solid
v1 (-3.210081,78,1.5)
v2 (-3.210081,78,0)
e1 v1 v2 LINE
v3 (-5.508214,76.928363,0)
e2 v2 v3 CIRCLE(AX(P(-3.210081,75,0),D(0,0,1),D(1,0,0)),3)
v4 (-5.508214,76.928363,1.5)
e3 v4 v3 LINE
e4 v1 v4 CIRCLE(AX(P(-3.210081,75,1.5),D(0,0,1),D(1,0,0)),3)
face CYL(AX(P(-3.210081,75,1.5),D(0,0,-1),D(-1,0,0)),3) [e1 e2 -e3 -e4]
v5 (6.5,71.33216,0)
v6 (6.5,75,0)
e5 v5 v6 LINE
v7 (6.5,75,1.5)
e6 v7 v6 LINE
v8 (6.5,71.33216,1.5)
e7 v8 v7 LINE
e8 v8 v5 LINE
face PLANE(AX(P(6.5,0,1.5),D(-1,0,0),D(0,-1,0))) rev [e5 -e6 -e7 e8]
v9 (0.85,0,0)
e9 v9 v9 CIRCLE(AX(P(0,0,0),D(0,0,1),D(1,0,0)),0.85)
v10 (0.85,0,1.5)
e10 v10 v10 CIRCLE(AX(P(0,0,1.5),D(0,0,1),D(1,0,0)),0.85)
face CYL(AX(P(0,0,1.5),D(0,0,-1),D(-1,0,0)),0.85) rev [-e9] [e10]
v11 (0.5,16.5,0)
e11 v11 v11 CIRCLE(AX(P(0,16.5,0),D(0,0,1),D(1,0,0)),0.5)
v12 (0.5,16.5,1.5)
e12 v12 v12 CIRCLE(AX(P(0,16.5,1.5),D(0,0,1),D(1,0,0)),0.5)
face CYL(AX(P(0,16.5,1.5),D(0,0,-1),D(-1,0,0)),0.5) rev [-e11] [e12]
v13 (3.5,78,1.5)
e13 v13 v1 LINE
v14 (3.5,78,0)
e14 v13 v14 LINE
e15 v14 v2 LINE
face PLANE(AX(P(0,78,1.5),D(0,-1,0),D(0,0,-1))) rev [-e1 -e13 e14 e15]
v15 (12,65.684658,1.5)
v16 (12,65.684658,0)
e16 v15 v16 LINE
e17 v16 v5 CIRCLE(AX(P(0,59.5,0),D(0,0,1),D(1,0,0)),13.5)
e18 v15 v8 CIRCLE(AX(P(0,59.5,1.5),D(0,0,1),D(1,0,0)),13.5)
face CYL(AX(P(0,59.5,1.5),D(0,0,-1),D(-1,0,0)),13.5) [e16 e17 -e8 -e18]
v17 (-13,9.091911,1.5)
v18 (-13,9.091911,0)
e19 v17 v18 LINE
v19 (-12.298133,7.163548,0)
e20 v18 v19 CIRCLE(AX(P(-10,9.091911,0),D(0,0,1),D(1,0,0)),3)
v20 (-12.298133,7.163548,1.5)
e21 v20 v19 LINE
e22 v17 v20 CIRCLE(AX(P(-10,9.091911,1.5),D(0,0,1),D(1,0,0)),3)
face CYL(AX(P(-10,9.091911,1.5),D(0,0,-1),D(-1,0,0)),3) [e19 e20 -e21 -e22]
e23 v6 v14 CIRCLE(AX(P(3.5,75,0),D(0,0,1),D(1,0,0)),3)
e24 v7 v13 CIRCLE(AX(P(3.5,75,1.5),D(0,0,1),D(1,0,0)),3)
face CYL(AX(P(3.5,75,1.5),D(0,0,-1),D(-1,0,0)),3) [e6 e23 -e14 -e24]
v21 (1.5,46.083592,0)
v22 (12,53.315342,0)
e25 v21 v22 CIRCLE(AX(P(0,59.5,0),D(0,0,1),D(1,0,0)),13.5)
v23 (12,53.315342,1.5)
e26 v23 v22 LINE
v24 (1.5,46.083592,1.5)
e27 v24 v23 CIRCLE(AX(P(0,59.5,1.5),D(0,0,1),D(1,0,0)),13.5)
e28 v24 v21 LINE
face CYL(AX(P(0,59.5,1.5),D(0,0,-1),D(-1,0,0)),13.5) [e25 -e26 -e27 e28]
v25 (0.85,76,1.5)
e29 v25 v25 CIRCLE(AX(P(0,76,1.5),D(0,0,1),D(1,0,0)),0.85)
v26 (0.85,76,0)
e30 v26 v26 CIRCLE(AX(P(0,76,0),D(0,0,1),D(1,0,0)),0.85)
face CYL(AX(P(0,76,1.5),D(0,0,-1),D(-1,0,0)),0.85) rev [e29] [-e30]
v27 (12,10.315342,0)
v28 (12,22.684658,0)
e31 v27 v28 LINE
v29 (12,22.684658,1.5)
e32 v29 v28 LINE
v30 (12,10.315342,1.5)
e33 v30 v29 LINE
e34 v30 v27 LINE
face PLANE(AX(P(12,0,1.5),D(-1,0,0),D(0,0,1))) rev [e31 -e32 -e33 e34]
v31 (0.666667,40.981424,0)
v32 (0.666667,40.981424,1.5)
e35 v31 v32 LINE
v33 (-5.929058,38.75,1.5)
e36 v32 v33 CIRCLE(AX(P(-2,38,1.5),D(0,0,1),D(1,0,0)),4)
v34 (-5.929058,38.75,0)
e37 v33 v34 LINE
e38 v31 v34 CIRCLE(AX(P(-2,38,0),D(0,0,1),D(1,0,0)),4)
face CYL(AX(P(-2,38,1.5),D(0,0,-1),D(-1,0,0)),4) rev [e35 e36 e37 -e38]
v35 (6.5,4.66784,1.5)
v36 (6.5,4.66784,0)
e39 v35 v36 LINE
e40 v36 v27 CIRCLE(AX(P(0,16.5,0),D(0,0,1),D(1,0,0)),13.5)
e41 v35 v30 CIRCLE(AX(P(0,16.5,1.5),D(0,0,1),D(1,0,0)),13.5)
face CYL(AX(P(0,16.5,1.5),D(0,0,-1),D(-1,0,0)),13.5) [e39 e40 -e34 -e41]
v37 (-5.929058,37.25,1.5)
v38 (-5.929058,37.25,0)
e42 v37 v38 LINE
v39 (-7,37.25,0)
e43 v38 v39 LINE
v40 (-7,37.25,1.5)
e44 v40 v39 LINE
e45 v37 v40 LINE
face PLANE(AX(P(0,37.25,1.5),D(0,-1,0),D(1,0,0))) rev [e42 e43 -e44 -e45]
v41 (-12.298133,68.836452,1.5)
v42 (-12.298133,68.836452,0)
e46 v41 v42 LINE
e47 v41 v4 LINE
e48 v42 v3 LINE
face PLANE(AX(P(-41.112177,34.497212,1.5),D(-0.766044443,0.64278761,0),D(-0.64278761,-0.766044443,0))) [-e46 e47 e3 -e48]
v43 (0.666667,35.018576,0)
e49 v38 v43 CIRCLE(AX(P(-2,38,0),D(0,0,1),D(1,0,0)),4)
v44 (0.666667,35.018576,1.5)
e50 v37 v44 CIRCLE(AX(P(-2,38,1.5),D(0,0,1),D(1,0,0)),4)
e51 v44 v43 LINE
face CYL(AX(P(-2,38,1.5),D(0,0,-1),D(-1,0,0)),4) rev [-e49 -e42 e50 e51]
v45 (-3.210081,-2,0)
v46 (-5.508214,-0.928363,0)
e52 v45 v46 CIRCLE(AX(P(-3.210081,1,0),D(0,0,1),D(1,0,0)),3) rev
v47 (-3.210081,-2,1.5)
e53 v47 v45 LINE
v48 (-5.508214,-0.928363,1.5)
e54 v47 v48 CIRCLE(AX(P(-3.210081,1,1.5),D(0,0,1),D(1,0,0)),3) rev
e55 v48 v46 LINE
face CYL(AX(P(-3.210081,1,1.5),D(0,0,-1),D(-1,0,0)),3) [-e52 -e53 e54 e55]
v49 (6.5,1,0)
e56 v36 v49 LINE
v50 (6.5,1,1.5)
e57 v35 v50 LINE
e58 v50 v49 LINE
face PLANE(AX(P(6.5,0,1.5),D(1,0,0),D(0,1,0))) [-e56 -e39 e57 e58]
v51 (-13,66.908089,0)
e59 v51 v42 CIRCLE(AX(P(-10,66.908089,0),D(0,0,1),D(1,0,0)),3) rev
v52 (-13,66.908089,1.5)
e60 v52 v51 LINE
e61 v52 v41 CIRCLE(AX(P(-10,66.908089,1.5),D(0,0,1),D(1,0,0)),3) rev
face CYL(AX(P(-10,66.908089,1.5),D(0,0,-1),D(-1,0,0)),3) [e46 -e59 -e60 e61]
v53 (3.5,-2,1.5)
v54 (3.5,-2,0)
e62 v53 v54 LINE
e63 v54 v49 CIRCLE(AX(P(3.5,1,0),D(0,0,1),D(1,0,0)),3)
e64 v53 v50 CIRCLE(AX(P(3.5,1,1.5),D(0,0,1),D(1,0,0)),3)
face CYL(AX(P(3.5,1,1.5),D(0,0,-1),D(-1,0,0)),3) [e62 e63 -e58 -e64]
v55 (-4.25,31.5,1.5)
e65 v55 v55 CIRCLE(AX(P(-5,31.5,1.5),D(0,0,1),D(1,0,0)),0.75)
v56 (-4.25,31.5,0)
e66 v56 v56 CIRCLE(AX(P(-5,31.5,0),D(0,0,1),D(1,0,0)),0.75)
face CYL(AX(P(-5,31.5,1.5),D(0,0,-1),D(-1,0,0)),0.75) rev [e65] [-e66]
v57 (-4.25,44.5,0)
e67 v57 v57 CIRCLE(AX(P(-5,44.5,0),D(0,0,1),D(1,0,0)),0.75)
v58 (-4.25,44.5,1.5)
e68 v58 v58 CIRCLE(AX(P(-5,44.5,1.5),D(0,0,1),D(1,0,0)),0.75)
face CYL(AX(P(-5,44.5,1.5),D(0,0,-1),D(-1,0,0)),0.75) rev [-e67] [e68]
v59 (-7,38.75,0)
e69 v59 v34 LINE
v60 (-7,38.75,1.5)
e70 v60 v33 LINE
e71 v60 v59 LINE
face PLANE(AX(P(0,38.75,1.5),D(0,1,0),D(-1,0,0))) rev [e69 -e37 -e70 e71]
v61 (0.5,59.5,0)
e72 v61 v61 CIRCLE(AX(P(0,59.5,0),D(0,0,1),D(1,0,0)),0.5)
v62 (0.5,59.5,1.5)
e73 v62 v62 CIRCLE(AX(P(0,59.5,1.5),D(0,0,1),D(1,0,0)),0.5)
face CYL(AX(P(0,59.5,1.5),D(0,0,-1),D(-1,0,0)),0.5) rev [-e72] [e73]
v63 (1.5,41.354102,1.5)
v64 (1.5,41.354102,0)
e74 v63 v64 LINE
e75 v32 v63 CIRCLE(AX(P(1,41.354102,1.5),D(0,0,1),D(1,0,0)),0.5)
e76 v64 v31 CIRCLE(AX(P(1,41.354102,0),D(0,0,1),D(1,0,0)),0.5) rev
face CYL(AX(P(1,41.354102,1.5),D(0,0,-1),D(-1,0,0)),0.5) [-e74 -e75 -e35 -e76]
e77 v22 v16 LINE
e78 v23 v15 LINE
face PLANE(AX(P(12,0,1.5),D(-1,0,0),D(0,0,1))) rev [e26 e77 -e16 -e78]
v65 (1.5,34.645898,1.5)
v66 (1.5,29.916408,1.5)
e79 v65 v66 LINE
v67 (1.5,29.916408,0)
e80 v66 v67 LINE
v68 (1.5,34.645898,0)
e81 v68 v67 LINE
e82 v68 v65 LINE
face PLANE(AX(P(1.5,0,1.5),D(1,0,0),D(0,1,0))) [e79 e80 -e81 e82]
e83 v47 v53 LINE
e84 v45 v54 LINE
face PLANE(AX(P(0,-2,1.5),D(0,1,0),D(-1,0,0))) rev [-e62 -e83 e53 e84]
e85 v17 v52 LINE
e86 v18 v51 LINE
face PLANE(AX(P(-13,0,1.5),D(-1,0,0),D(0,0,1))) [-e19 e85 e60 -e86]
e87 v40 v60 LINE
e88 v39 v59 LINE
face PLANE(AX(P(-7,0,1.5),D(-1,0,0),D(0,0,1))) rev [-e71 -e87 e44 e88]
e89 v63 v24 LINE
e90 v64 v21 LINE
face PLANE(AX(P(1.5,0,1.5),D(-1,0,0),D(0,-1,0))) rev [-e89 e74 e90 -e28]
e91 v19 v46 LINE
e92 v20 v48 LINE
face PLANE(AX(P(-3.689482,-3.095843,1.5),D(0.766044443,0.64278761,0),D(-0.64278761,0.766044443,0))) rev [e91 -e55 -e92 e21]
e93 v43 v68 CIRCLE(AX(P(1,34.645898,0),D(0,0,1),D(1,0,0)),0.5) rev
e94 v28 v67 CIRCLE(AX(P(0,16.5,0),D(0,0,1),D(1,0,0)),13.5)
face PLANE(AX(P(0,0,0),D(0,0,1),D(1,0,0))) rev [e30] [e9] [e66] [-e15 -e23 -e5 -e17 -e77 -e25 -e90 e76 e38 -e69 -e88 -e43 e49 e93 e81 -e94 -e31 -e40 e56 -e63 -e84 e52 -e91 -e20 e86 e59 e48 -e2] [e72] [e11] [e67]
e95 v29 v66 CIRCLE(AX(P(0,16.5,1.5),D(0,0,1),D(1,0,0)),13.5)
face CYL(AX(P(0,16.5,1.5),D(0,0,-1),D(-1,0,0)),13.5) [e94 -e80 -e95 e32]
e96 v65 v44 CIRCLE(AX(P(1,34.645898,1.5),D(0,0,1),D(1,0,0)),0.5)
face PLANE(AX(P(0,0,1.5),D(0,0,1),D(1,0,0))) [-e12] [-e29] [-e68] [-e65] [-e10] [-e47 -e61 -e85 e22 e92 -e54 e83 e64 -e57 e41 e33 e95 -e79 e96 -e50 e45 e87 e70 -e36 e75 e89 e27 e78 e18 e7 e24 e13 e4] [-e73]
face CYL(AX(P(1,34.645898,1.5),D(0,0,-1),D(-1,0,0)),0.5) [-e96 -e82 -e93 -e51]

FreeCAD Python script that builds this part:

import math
import FreeCAD as App
import Part
import Sketcher
from FreeCAD import Vector
Q = App.Units.Quantity


def edges_at(feature, points):
    """Names of the edges that pass closest to the given points."""
    edges = feature.Shape.Edges
    near = lambda p: min(range(len(edges)), key=lambda i: edges[i].distToShape(Part.Vertex(*p))[0])
    return sorted({f"Edge{near(p) + 1}" for p in points})

doc = App.newDocument("Part")
body = doc.addObject("PartDesign::Body", "Body")

# Sketch on XY plane
sketch1 = body.newObject("Sketcher::SketchObject", "Sketch")
sketch1.AttachmentSupport = (doc.getObject("XY_Plane"), [""])
sketch1.MapMode = "FlatFace"
sketch1.addGeometry(Part.LineSegment(Vector(-13, 66.9, 0), Vector(-13, 9.1, 0)), False)
sketch1.addGeometry(Part.ArcOfCircle(Part.Circle(Vector(-10, 9.1, 0), Vector(0, 0, 1), 3), math.radians(-180), math.radians(-140)), False)
sketch1.addGeometry(Part.LineSegment(Vector(-12.3, 7.2, 0), Vector(-5.5, -0.9, 0)), False)
sketch1.addGeometry(Part.ArcOfCircle(Part.Circle(Vector(-3.2, 1, 0), Vector(0, 0, 1), 3), math.radians(-140), math.radians(-90)), False)
sketch1.addGeometry(Part.LineSegment(Vector(-3.2, -2, 0), Vector(3.5, -2, 0)), False)
sketch1.addGeometry(Part.ArcOfCircle(Part.Circle(Vector(3.5, 1, 0), Vector(0, 0, 1), 3), math.radians(-90), math.radians(0)), False)
sketch1.addGeometry(Part.LineSegment(Vector(6.5, 1, 0), Vector(6.5, 4.7, 0)), False)
sketch1.addGeometry(Part.ArcOfCircle(Part.Circle(Vector(0, 16.5, 0), Vector(0, 0, 1), 13.5), math.radians(-61), math.radians(-27)), False)
sketch1.addGeometry(Part.LineSegment(Vector(12, 10.3, 0), Vector(12, 22.7, 0)), False)
sketch1.addGeometry(Part.ArcOfCircle(Part.Circle(Vector(0, 16.5, 0), Vector(0, 0, 1), 13.5), math.radians(27), math.radians(84)), False)
sketch1.addGeometry(Part.LineSegment(Vector(1.5, 29.9, 0), Vector(1.5, 36.1, 0)), False)
sketch1.addGeometry(Part.ArcOfCircle(Part.Circle(Vector(-2, 38, 0), Vector(0, 0, 1), 4), math.radians(-169), math.radians(-29)), False)
sketch1.addGeometry(Part.LineSegment(Vector(-5.9, 37.2, 0), Vector(-7, 37.2, 0)), False)
sketch1.addGeometry(Part.LineSegment(Vector(-7, 37.2, 0), Vector(-7, 38.8, 0)), False)
sketch1.addGeometry(Part.LineSegment(Vector(-7, 38.8, 0), Vector(-5.9, 38.8, 0)), False)
sketch1.addGeometry(Part.ArcOfCircle(Part.Circle(Vector(-2, 38, 0), Vector(0, 0, 1), 4), math.radians(29), math.radians(169)), False)
sketch1.addGeometry(Part.LineSegment(Vector(1.5, 39.9, 0), Vector(1.5, 46.1, 0)), False)
sketch1.addGeometry(Part.ArcOfCircle(Part.Circle(Vector(0, 59.5, 0), Vector(0, 0, 1), 13.5), math.radians(-84), math.radians(-27)), False)
sketch1.addGeometry(Part.LineSegment(Vector(12, 53.3, 0), Vector(12, 65.7, 0)), False)
sketch1.addGeometry(Part.ArcOfCircle(Part.Circle(Vector(0, 59.5, 0), Vector(0, 0, 1), 13.5), math.radians(27), math.radians(61)), False)
sketch1.addGeometry(Part.LineSegment(Vector(6.5, 71.3, 0), Vector(6.5, 75, 0)), False)
sketch1.addGeometry(Part.ArcOfCircle(Part.Circle(Vector(3.5, 75, 0), Vector(0, 0, 1), 3), math.radians(0), math.radians(90)), False)
sketch1.addGeometry(Part.LineSegment(Vector(3.5, 78, 0), Vector(-3.2, 78, 0)), False)
sketch1.addGeometry(Part.ArcOfCircle(Part.Circle(Vector(-3.2, 75, 0), Vector(0, 0, 1), 3), math.radians(90), math.radians(140)), False)
sketch1.addGeometry(Part.LineSegment(Vector(-5.5, 76.9, 0), Vector(-12.3, 68.8, 0)), False)
sketch1.addGeometry(Part.ArcOfCircle(Part.Circle(Vector(-10, 66.9, 0), Vector(0, 0, 1), 3), math.radians(140), math.radians(180)), False)
sketch1.addGeometry(Part.Circle(Vector(0, 0, 0), Vector(0, 0, 1), 0.8), False)
sketch1.addGeometry(Part.Circle(Vector(0, 16.5, 0), Vector(0, 0, 1), 0.5), False)
sketch1.addGeometry(Part.Circle(Vector(-5, 31.5, 0), Vector(0, 0, 1), 0.8), False)
sketch1.addGeometry(Part.Circle(Vector(0, 59.5, 0), Vector(0, 0, 1), 0.5), False)
sketch1.addGeometry(Part.Circle(Vector(0, 76, 0), Vector(0, 0, 1), 0.8), False)
sketch1.addGeometry(Part.Circle(Vector(-5, 44.5, 0), Vector(0, 0, 1), 0.8), False)
sketch1.addConstraint(Sketcher.Constraint("Tangent", 0, 2, 1, 1))
sketch1.addConstraint(Sketcher.Constraint("Tangent", 1, 2, 2, 1))
sketch1.addConstraint(Sketcher.Constraint("Tangent", 2, 2, 3, 1))
sketch1.addConstraint(Sketcher.Constraint("Tangent", 3, 2, 4, 1))
sketch1.addConstraint(Sketcher.Constraint("Tangent", 4, 2, 5, 1))
sketch1.addConstraint(Sketcher.Constraint("Tangent", 5, 2, 6, 1))
sketch1.addConstraint(Sketcher.Constraint("Coincident", 6, 2, 7, 1))
sketch1.addConstraint(Sketcher.Constraint("Coincident", 7, 2, 8, 1))
sketch1.addConstraint(Sketcher.Constraint("Coincident", 8, 2, 9, 1))
sketch1.addConstraint(Sketcher.Constraint("Coincident", 9, 2, 10, 1))
sketch1.addConstraint(Sketcher.Constraint("Coincident", 10, 2, 11, 2))
sketch1.addConstraint(Sketcher.Constraint("Coincident", 11, 1, 12, 1))
sketch1.addConstraint(Sketcher.Constraint("Coincident", 12, 2, 13, 1))
sketch1.addConstraint(Sketcher.Constraint("Coincident", 13, 2, 14, 1))
sketch1.addConstraint(Sketcher.Constraint("Coincident", 14, 2, 15, 2))
sketch1.addConstraint(Sketcher.Constraint("Coincident", 15, 1, 16, 1))
sketch1.addConstraint(Sketcher.Constraint("Coincident", 16, 2, 17, 1))
sketch1.addConstraint(Sketcher.Constraint("Coincident", 17, 2, 18, 1))
sketch1.addConstraint(Sketcher.Constraint("Coincident", 18, 2, 19, 1))
sketch1.addConstraint(Sketcher.Constraint("Coincident", 19, 2, 20, 1))
sketch1.addConstraint(Sketcher.Constraint("Tangent", 20, 2, 21, 1))
sketch1.addConstraint(Sketcher.Constraint("Tangent", 21, 2, 22, 1))
sketch1.addConstraint(Sketcher.Constraint("Tangent", 22, 2, 23, 1))
sketch1.addConstraint(Sketcher.Constraint("Tangent", 23, 2, 24, 1))
sketch1.addConstraint(Sketcher.Constraint("Tangent", 24, 2, 25, 1))
sketch1.addConstraint(Sketcher.Constraint("Tangent", 25, 2, 0, 1))
sketch1.addConstraint(Sketcher.Constraint("Vertical", 0))
sketch1.addConstraint(Sketcher.Constraint("Horizontal", 4))
sketch1.addConstraint(Sketcher.Constraint("Vertical", 6))
sketch1.addConstraint(Sketcher.Constraint("Vertical", 8))
sketch1.addConstraint(Sketcher.Constraint("Vertical", 10))
sketch1.addConstraint(Sketcher.Constraint("Horizontal", 12))
sketch1.addConstraint(Sketcher.Constraint("Vertical", 13))
sketch1.addConstraint(Sketcher.Constraint("Horizontal", 14))
sketch1.addConstraint(Sketcher.Constraint("Vertical", 16))
sketch1.addConstraint(Sketcher.Constraint("Vertical", 18))
sketch1.addConstraint(Sketcher.Constraint("Vertical", 20))
sketch1.addConstraint(Sketcher.Constraint("Horizontal", 22))
sketch1.addConstraint(Sketcher.Constraint("Coincident", 26, 3, -1, 1))
sketch1.addConstraint(Sketcher.Constraint("Coincident", 9, 3, 7, 3))
sketch1.addConstraint(Sketcher.Constraint("Coincident", 15, 3, 11, 3))
sketch1.addConstraint(Sketcher.Constraint("Coincident", 19, 3, 17, 3))
sketch1.addConstraint(Sketcher.Constraint("Coincident", 27, 3, 7, 3))
sketch1.addConstraint(Sketcher.Constraint("Coincident", 29, 3, 17, 3))
sketch1.addConstraint(Sketcher.Constraint("Equal", 1, 3))
sketch1.addConstraint(Sketcher.Constraint("Equal", 3, 5))
sketch1.addConstraint(Sketcher.Constraint("Equal", 7, 9))
sketch1.addConstraint(Sketcher.Constraint("Equal", 11, 15))
sketch1.addConstraint(Sketcher.Constraint("Equal", 9, 17))
sketch1.addConstraint(Sketcher.Constraint("Equal", 17, 19))
sketch1.addConstraint(Sketcher.Constraint("Equal", 5, 21))
sketch1.addConstraint(Sketcher.Constraint("Equal", 21, 23))
sketch1.addConstraint(Sketcher.Constraint("Equal", 23, 25))
sketch1.addConstraint(Sketcher.Constraint("Equal", 27, 29))
sketch1.addConstraint(Sketcher.Constraint("Equal", 26, 30))
sketch1.addConstraint(Sketcher.Constraint("Equal", 28, 31))
sketch1.addConstraint(Sketcher.Constraint("PointOnObject", 7, 3, -2))
sketch1.addConstraint(Sketcher.Constraint("PointOnObject", 17, 3, -2))
sketch1.addConstraint(Sketcher.Constraint("PointOnObject", 30, 3, -2))
sketch1.addConstraint(Sketcher.Constraint("Vertical", 5, 3, 21, 3))
sketch1.addConstraint(Sketcher.Constraint("Vertical", 3, 3, 23, 3))
sketch1.addConstraint(Sketcher.Constraint("Vertical", 28, 3, 31, 3))
sketch1.addConstraint(Sketcher.Constraint("Vertical", 11, 1, 14, 2))
sketch1.addConstraint(Sketcher.Constraint("Vertical", 10, 2, 15, 1))
sketch1.addConstraint(Sketcher.Constraint("Vertical", 8, 2, 17, 2))
sketch1.addConstraint(Sketcher.Constraint("Vertical", 2, 2, 23, 2))
sketch1.addConstraint(Sketcher.Constraint("Equal", 10, 16))
sketch1.addConstraint(Sketcher.Constraint("Equal", 6, 20))
sketch1.addConstraint(Sketcher.Constraint("Diameter", 27, Q("1 mm")))
sketch1.addConstraint(Sketcher.Constraint("Radius", 1, Q("3 mm")))
sketch1.addConstraint(Sketcher.Constraint("Radius", 11, Q("4 mm")))
sketch1.addConstraint(Sketcher.Constraint("Diameter", 26, Q("1.7 mm")))
sketch1.addConstraint(Sketcher.Constraint("Diameter", 28, Q("1.5 mm")))
sketch1.addConstraint(Sketcher.Constraint("Radius", 7, Q("13.5 mm")))
sketch1.addConstraint(Sketcher.Constraint("Angle", 2, Q("-50 deg")))
sketch1.addConstraint(Sketcher.Constraint("DistanceY", 13, 1, 13, 2, Q("1.5 mm")))
sketch1.addConstraint(Sketcher.Constraint("DistanceX", 1, 3, -1, 1, Q("10 mm")))
sketch1.addConstraint(Sketcher.Constraint("DistanceY", -1, 1, 3, 3, Q("1 mm")))
sketch1.addConstraint(Sketcher.Constraint("DistanceX", 11, 3, -1, 1, Q("2 mm")))
sketch1.addConstraint(Sketcher.Constraint("DistanceY", -1, 1, 11, 3, Q("38 mm")))
sketch1.addConstraint(Sketcher.Constraint("DistanceX", 28, 3, -1, 1, Q("5 mm")))
sketch1.addConstraint(Sketcher.Constraint("DistanceY", -1, 1, 30, 3, Q("76 mm")))
sketch1.addConstraint(Sketcher.Constraint("DistanceX", -1, 1, 7, 2, Q("12 mm")))
sketch1.addConstraint(Sketcher.Constraint("DistanceX", 12, 2, -1, 1, Q("7 mm")))
sketch1.addConstraint(Sketcher.Constraint("DistanceY", 7, 3, 17, 3, Q("43 mm")))
sketch1.addConstraint(Sketcher.Constraint("DistanceY", 7, 3, 28, 3, Q("15 mm")))
sketch1.addConstraint(Sketcher.Constraint("DistanceY", 28, 3, 31, 3, Q("13 mm")))
sketch1.addConstraint(Sketcher.Constraint("DistanceX", -1, 1, 5, 3, Q("3.5 mm")))
sketch1.addConstraint(Sketcher.Constraint("DistanceX", -1, 1, 9, 2, Q("1.5 mm")))
sketch1.addConstraint(Sketcher.Constraint("DistanceX", 4, 1, 4, 2, Q("6.710081 mm")))
pad1 = body.newObject("PartDesign::Pad", "Pad")
pad1.Profile = sketch1
pad1.Length = 1.5
doc.recompute()

fillet = body.newObject("PartDesign::Fillet", "Fillet")
fillet.Base = (pad1, edges_at(pad1, [(1.5, 36.064, 0.75), (1.5, 39.936, 0.75)]))
fillet.Radius = 0.5

doc.recompute()
